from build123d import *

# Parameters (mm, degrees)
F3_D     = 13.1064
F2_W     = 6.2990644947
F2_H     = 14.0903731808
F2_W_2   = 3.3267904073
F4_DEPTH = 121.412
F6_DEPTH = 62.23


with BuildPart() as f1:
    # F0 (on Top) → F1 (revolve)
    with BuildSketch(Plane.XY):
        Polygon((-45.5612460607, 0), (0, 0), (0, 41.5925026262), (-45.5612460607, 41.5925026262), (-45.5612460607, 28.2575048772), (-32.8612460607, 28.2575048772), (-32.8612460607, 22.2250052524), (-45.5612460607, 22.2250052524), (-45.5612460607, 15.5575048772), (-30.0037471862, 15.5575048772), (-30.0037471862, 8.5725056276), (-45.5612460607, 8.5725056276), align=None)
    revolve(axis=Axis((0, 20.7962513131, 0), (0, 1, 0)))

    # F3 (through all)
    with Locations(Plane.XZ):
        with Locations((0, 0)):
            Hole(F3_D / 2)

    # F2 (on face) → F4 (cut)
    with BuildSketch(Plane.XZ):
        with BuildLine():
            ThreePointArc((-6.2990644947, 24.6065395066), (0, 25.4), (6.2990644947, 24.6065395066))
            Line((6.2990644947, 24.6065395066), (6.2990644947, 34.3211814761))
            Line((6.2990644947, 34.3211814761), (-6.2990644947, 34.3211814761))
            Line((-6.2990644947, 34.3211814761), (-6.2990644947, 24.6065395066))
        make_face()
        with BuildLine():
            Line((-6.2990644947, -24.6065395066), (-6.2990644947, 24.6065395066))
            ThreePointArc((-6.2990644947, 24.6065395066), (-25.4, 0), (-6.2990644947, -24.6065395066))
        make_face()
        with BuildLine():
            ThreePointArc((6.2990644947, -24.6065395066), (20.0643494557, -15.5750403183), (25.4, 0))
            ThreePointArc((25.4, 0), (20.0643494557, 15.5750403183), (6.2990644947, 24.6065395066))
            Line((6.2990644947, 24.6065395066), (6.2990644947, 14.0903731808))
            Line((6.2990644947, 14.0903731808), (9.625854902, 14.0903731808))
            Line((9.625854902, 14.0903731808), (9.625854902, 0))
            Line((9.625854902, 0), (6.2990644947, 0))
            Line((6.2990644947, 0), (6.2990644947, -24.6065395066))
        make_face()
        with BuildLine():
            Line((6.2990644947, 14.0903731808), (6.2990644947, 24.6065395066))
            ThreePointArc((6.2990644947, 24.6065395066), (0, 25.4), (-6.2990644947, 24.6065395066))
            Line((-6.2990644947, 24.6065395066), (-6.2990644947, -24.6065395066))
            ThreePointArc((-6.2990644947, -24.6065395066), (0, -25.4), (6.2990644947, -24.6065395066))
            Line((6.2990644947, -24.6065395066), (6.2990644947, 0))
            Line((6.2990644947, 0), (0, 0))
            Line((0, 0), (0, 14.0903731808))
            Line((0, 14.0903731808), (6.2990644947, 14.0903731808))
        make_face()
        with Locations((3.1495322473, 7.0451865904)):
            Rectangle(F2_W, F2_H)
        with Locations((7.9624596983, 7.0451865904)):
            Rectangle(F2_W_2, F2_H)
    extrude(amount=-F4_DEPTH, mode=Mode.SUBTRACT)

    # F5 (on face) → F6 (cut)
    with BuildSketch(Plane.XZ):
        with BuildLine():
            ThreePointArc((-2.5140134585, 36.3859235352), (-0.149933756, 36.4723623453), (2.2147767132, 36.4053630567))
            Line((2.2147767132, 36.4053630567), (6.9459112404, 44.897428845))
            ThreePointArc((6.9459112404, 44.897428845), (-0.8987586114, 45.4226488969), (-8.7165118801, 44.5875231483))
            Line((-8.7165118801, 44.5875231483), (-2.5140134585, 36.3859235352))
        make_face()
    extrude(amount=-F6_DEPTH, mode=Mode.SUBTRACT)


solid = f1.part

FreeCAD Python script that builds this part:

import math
import FreeCAD as App
import Part
import Sketcher

V = App.Vector
Q = App.Units.Quantity


def add_polygon(sketch, points):
    """Adds a closed chain of lines whose ends are joined by coincident constraints."""
    first, n = sketch.GeometryCount, len(points)
    for a, b in zip(points, points[1:] + points[:1]):
        sketch.addGeometry(Part.LineSegment(App.Vector(*a, 0), App.Vector(*b, 0)), False)
    for i in range(n):
        sketch.addConstraint(Sketcher.Constraint("Coincident", first + i, 2, first + (i + 1) % n, 1))

doc = App.newDocument("Part")
body = doc.addObject("PartDesign::Body", "Body")

sketch1 = body.newObject("Sketcher::SketchObject", "Sketch")
sketch1.AttachmentSupport = (doc.getObject("XY_Plane"), [""])
sketch1.MapMode = "FlatFace"
add_polygon(sketch1, [(-46, 0), (0, 0), (0, 42), (-46, 42), (-46, 28), (-33, 28), (-33, 22), (-46, 22), (-46, 16), (-30, 16), (-30, 9), (-46, 9)])
sketch1.addConstraint([
    Sketcher.Constraint("Horizontal", 0),
    Sketcher.Constraint("Vertical", 1),
    Sketcher.Constraint("Horizontal", 2),
    Sketcher.Constraint("Vertical", 3),
    Sketcher.Constraint("Horizontal", 4),
    Sketcher.Constraint("Vertical", 5),
    Sketcher.Constraint("Horizontal", 6),
    Sketcher.Constraint("Vertical", 7),
    Sketcher.Constraint("Horizontal", 8),
    Sketcher.Constraint("Vertical", 9),
    Sketcher.Constraint("Horizontal", 10),
    Sketcher.Constraint("Vertical", 11),
    Sketcher.Constraint("Coincident", 0, 2, -1, 1),
    Sketcher.Constraint("Vertical", 3, 2, 6, 2),
    Sketcher.Constraint("Vertical", 7, 2, 10, 2),
    Sketcher.Constraint("DistanceX", 4, 1, 4, 2, Q("0.5 in")),
    Sketcher.Constraint("DistanceY", 7, 2, 3, 2, Q("0.5 in")),
    Sketcher.Constraint("DistanceY", 3, 2, 3, 1, Q("0.5249999 in")),
    Sketcher.Constraint("DistanceY", 9, 2, 9, 1, Q("0.275 in")),
    Sketcher.Constraint("DistanceX", 8, 1, 8, 2, Q("0.6125 in")),
    Sketcher.Constraint("DistanceY", 1, 1, 1, 2, Q("1.6375001 in")),
    Sketcher.Constraint("DistanceY", 5, 2, 5, 1, Q("0.2375 in")),
    Sketcher.Constraint("DistanceX", 0, 1, 0, 2, Q("45.561246 mm")),
])
revolution = body.newObject("PartDesign::Revolution", "Revolution")
revolution.Profile = sketch1
revolution.ReferenceAxis = (sketch1, ["V_Axis"])
revolution.Angle = 360

sketch2 = body.newObject("Sketcher::SketchObject", "Sketch001")
sketch2.AttachmentSupport = (doc.getObject("XZ_Plane"), [""])
sketch2.MapMode = "FlatFace"
sketch2.addGeometry(Part.Circle(V(0, 0, 0), V(0, 0, 1), 7), False)
sketch2.addConstraint([
    Sketcher.Constraint("Coincident", 0, 3, -1, 1),
    Sketcher.Constraint("Diameter", 0, Q("0.516 in")),
])
doc.recompute()
hole = body.newObject("PartDesign::Hole", "Hole")
hole.Profile = sketch2
hole.ThreadType = "None"
hole.Diameter = Q("0.516 in")
hole.DepthType = "ThroughAll"

sketch3 = body.newObject("Sketcher::SketchObject", "Sketch002")
sketch3.AttachmentSupport = (doc.getObject("XZ_Plane"), [""])
sketch3.MapMode = "FlatFace"
sketch3.addGeometry([
    Part.LineSegment(V(6, 25, 0), V(6, 34, 0)),
    Part.LineSegment(V(6, 34, 0), V(-6, 34, 0)),
    Part.LineSegment(V(-6, 34, 0), V(-6, 25, 0)),
    Part.ArcOfCircle(Part.Circle(V(0, 0, 0), V(0, 0, 1), 25), math.radians(104), math.radians(256)),
    Part.ArcOfCircle(Part.Circle(V(0, 0, 0), V(0, 0, 1), 25), math.radians(-104), math.radians(-76)),
    Part.ArcOfCircle(Part.Circle(V(0, 0, 0), V(0, 0, 1), 25), math.radians(-76), math.radians(0)),
    Part.ArcOfCircle(Part.Circle(V(0, 0, 0), V(0, 0, 1), 25), math.radians(0), math.radians(76)),
], False)
sketch3.addConstraint([
    Sketcher.Constraint("Coincident", 0, 2, 1, 1),
    Sketcher.Constraint("Coincident", 1, 2, 2, 1),
    Sketcher.Constraint("Coincident", 2, 2, 3, 1),
    Sketcher.Constraint("Tangent", 3, 2, 4, 1),
    Sketcher.Constraint("Tangent", 4, 2, 5, 1),
    Sketcher.Constraint("Tangent", 5, 2, 6, 1),
    Sketcher.Constraint("Coincident", 6, 2, 0, 1),
    Sketcher.Constraint("Vertical", 0),
    Sketcher.Constraint("Horizontal", 1),
    Sketcher.Constraint("Vertical", 2),
    Sketcher.Constraint("Coincident", 3, 3, -1, 1),
    Sketcher.Constraint("Coincident", 5, 3, -1, 1),
    Sketcher.Constraint("Equal", 5, 6),
    Sketcher.Constraint("PointOnObject", 5, 2, -1),
    Sketcher.Constraint("Horizontal", 3, 2, 4, 2),
    Sketcher.Constraint("Horizontal", 2, 2, 6, 2),
    Sketcher.Constraint("Vertical", 2, 2, 3, 2),
    Sketcher.Constraint("Radius", 3, Q("1 in")),
    Sketcher.Constraint("DistanceX", 1, 2, 1, 1, Q("12.598129 mm")),
    Sketcher.Constraint("DistanceY", 0, 1, 0, 2, Q("9.714642 mm")),
])
pocket1 = body.newObject("PartDesign::Pocket", "Pocket")
pocket1.Profile = sketch3
pocket1.Length = Q("4.78 in")

sketch4 = body.newObject("Sketcher::SketchObject", "Sketch003")
sketch4.AttachmentSupport = (doc.getObject("XZ_Plane"), [""])
sketch4.MapMode = "FlatFace"
sketch4.addGeometry([
    Part.ArcOfCircle(Part.Circle(V(0, 0, 0), V(0, 0, 1), 36.5), math.radians(86.52), math.radians(93.95)),
    Part.LineSegment(V(2.2, 36.4, 0), V(6.9, 44.9, 0)),
    Part.ArcOfCircle(Part.Circle(V(0, 0, 0), V(0, 0, 1), 45.4), math.radians(81.21), math.radians(101.06)),
    Part.LineSegment(V(-8.7, 44.6, 0), V(-2.5, 36.4, 0)),
], False)
sketch4.addConstraint([
    Sketcher.Constraint("Coincident", 0, 1, 1, 1),
    Sketcher.Constraint("Coincident", 1, 2, 2, 1),
    Sketcher.Constraint("Coincident", 2, 2, 3, 1),
    Sketcher.Constraint("Coincident", 3, 2, 0, 2),
    Sketcher.Constraint("Coincident", 0, 3, -1, 1),
    Sketcher.Constraint("Coincident", 2, 3, -1, 1),
    Sketcher.Constraint("Radius", 0, Q("36.472671 mm")),
    Sketcher.Constraint("Radius", 2, Q("45.43154 mm")),
    Sketcher.Constraint("DistanceX", 2, 2, 3, 2, Q("6.202498 mm")),
    Sketcher.Constraint("DistanceY", 3, 2, 2, 2, Q("8.2016 mm")),
    Sketcher.Constraint("Distance", 1, Q("9.72105 mm")),
    Sketcher.Constraint("DistanceX", -1, 1, 1, 2, Q("6.945911 mm")),
])
pocket2 = body.newObject("PartDesign::Pocket", "Pocket001")
pocket2.Profile = sketch4
pocket2.Length = Q("2.45 in")

doc.recompute()
